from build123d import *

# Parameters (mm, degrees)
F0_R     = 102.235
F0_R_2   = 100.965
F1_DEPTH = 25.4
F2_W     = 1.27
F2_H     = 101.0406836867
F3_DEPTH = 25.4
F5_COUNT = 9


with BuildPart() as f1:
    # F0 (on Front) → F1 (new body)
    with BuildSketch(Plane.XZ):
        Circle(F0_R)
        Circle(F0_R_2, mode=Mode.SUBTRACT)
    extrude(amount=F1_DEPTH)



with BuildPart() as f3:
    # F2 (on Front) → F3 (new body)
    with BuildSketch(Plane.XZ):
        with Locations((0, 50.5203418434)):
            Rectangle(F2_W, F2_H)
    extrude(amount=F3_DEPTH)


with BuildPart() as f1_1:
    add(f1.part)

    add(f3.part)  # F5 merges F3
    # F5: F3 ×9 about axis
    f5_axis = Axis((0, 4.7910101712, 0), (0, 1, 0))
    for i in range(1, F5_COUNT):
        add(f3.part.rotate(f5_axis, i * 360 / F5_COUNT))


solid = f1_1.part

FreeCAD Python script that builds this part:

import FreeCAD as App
import Part
import Sketcher
from FreeCAD import Vector
Q = App.Units.Quantity

doc = App.newDocument("Part")
body = doc.addObject("PartDesign::Body", "Body")

sketch1 = body.newObject("Sketcher::SketchObject", "Sketch")
sketch1.AttachmentSupport = (doc.getObject("XZ_Plane"), [""])
sketch1.MapMode = "FlatFace"
sketch1.addGeometry(Part.Circle(Vector(0, 0, 0), Vector(0, 0, 1), 102), False)
sketch1.addGeometry(Part.Circle(Vector(0, 0, 0), Vector(0, 0, 1), 101), False)
sketch1.addConstraint(Sketcher.Constraint("Coincident", 0, 3, -1, 1))
sketch1.addConstraint(Sketcher.Constraint("Coincident", 1, 3, -1, 1))
sketch1.addConstraint(Sketcher.Constraint("Diameter", 0, Q("8.05 in")))
sketch1.addConstraint(Sketcher.Constraint("Diameter", 1, Q("7.95 in")))
pad1 = body.newObject("PartDesign::Pad", "Pad")
pad1.Profile = sketch1
pad1.Length = Q("1 in")
body2 = doc.addObject("PartDesign::Body", "Body001")

sketch2 = body2.newObject("Sketcher::SketchObject", "Sketch001")
sketch2.AttachmentSupport = (doc.getObject("XZ_Plane001"), [""])
sketch2.MapMode = "FlatFace"
sketch2.addGeometry(Part.LineSegment(Vector(-0.6, 101, 0), Vector(-0.6, 0, 0)), False)
sketch2.addGeometry(Part.LineSegment(Vector(-0.6, 0, 0), Vector(0.6, 0, 0)), False)
sketch2.addGeometry(Part.LineSegment(Vector(0.6, 0, 0), Vector(0.6, 101, 0)), False)
sketch2.addGeometry(Part.LineSegment(Vector(0.6, 101, 0), Vector(-0.6, 101, 0)), False)
sketch2.addConstraint(Sketcher.Constraint("Coincident", 0, 2, 1, 1))
sketch2.addConstraint(Sketcher.Constraint("Coincident", 1, 2, 2, 1))
sketch2.addConstraint(Sketcher.Constraint("Coincident", 2, 2, 3, 1))
sketch2.addConstraint(Sketcher.Constraint("Coincident", 3, 2, 0, 1))
sketch2.addConstraint(Sketcher.Constraint("Vertical", 0))
sketch2.addConstraint(Sketcher.Constraint("Horizontal", 1))
sketch2.addConstraint(Sketcher.Constraint("Vertical", 2))
sketch2.addConstraint(Sketcher.Constraint("Horizontal", 3))
sketch2.addConstraint(Sketcher.Constraint("Symmetric", 0, 2, 1, 2, -1, 1))
sketch2.addConstraint(Sketcher.Constraint("DistanceX", 1, 1, 1, 2, Q("0.05 in")))
sketch2.addConstraint(Sketcher.Constraint("DistanceY", 0, 2, 0, 1, 101.040684))
pad2 = body2.newObject("PartDesign::Pad", "Pad001")
pad2.Profile = sketch2
pad2.Length = Q("1 in")
doc.recompute()

body3 = doc.addObject("PartDesign::Body", "Body002")
body3.BaseFeature = body2
boolean = body.newObject("PartDesign::Boolean", "Boolean")
boolean.Type = "Fuse"
boolean.addObjects([body3])
doc.recompute()

body4 = doc.addObject("PartDesign::Body", "Body003")
body4.BaseFeature = body2
body4.Placement = App.Placement(Vector(0, 0, 0), App.Rotation(Vector(0, 1, 0), 40))
boolean2 = body.newObject("PartDesign::Boolean", "Boolean001")
boolean2.Type = "Fuse"
boolean2.addObjects([body4])
doc.recompute()

body5 = doc.addObject("PartDesign::Body", "Body004")
body5.BaseFeature = body2
body5.Placement = App.Placement(Vector(0, 0, 0), App.Rotation(Vector(0, 1, 0), 80))
boolean3 = body.newObject("PartDesign::Boolean", "Boolean002")
boolean3.Type = "Fuse"
boolean3.addObjects([body5])
doc.recompute()

body6 = doc.addObject("PartDesign::Body", "Body005")
body6.BaseFeature = body2
body6.Placement = App.Placement(Vector(0, 0, 0), App.Rotation(Vector(0, 1, 0), 120))
boolean4 = body.newObject("PartDesign::Boolean", "Boolean003")
boolean4.Type = "Fuse"
boolean4.addObjects([body6])
doc.recompute()

body7 = doc.addObject("PartDesign::Body", "Body006")
body7.BaseFeature = body2
body7.Placement = App.Placement(Vector(0, 0, 0), App.Rotation(Vector(0, 1, 0), 160))
boolean5 = body.newObject("PartDesign::Boolean", "Boolean004")
boolean5.Type = "Fuse"
boolean5.addObjects([body7])
doc.recompute()

body8 = doc.addObject("PartDesign::Body", "Body007")
body8.BaseFeature = body2
body8.Placement = App.Placement(Vector(0, 0, 0), App.Rotation(Vector(0, 1, 0), 200))
boolean6 = body.newObject("PartDesign::Boolean", "Boolean005")
boolean6.Type = "Fuse"
boolean6.addObjects([body8])
doc.recompute()

body9 = doc.addObject("PartDesign::Body", "Body008")
body9.BaseFeature = body2
body9.Placement = App.Placement(Vector(0, 0, 0), App.Rotation(Vector(0, 1, 0), 240))
boolean7 = body.newObject("PartDesign::Boolean", "Boolean006")
boolean7.Type = "Fuse"
boolean7.addObjects([body9])
doc.recompute()

body10 = doc.addObject("PartDesign::Body", "Body009")
body10.BaseFeature = body2
body10.Placement = App.Placement(Vector(0, 0, 0), App.Rotation(Vector(0, 1, 0), 280))
boolean8 = body.newObject("PartDesign::Boolean", "Boolean007")
boolean8.Type = "Fuse"
boolean8.addObjects([body10])
doc.recompute()

body2.Placement = App.Placement(Vector(0, 0, 0), App.Rotation(Vector(0, 1, 0), 320))
boolean9 = body.newObject("PartDesign::Boolean", "Boolean008")
boolean9.Type = "Fuse"
boolean9.addObjects([body2])

doc.recompute()
